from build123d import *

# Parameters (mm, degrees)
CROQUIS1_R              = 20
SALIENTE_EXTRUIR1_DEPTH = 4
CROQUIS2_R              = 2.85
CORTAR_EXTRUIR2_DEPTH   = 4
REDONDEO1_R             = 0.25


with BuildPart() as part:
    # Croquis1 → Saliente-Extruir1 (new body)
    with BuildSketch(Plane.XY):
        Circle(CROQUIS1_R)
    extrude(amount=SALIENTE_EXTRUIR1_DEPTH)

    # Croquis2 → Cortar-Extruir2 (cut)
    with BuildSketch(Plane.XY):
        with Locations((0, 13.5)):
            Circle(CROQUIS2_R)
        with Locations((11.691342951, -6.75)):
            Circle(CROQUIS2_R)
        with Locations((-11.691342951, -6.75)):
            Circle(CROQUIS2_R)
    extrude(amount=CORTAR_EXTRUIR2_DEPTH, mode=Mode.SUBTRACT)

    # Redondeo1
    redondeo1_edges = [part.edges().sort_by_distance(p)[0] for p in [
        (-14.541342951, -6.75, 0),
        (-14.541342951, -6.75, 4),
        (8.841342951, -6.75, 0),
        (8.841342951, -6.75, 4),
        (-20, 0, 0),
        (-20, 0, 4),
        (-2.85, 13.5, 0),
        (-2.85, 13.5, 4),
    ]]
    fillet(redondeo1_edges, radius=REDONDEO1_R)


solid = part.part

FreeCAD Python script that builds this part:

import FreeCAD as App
import Part
import Sketcher

V = App.Vector
Q = App.Units.Quantity


def edges_at(feature, points):
    """Names of the edges that pass closest to the given points."""
    edges = feature.Shape.Edges
    near = lambda p: min(range(len(edges)), key=lambda i: edges[i].distToShape(Part.Vertex(*p))[0])
    return sorted({f"Edge{near(p) + 1}" for p in points})

doc = App.newDocument("Part")
body = doc.addObject("PartDesign::Body", "Body")

# Sketch on XY plane
sketch1 = body.newObject("Sketcher::SketchObject", "Sketch")
sketch1.AttachmentSupport = (doc.getObject("XY_Plane"), [""])
sketch1.MapMode = "FlatFace"
sketch1.addGeometry(Part.Circle(V(0, 0, 0), V(0, 0, 1), 20), False)
sketch1.addConstraint([
    Sketcher.Constraint("Coincident", 0, 3, -1, 1),
    Sketcher.Constraint("Diameter", 0, Q("40 mm")),
])
pad1 = body.newObject("PartDesign::Pad", "Pad")
pad1.Profile = sketch1
pad1.Length = 4

# Sketch on XY plane
sketch2 = body.newObject("Sketcher::SketchObject", "Sketch001")
sketch2.AttachmentSupport = (doc.getObject("XY_Plane"), [""])
sketch2.MapMode = "FlatFace"
sketch2.addGeometry([
    Part.Circle(V(0, 13.5, 0), V(0, 0, 1), 2.9),
    Part.Circle(V(11.7, -6.8, 0), V(0, 0, 1), 2.9),
    Part.Circle(V(-11.7, -6.8, 0), V(0, 0, 1), 2.9),
], False)
sketch2.addConstraint([
    Sketcher.Constraint("Equal", 0, 1),
    Sketcher.Constraint("Equal", 1, 2),
    Sketcher.Constraint("Symmetric", 1, 3, 2, 3, -2),
    Sketcher.Constraint("PointOnObject", 0, 3, -2),
    Sketcher.Constraint("Diameter", 0, Q("5.7 mm")),
    Sketcher.Constraint("DistanceY", -1, 1, 0, 3, Q("13.5 mm")),
    Sketcher.Constraint("DistanceY", 1, 3, -1, 1, Q("6.75 mm")),
    Sketcher.Constraint("DistanceX", -1, 1, 1, 3, Q("11.691343 mm")),
])
pocket1 = body.newObject("PartDesign::Pocket", "Pocket")
pocket1.Profile = sketch2
pocket1.Length = 4
pocket1.Reversed = True
doc.recompute()

fillet = body.newObject("PartDesign::Fillet", "Fillet")
fillet.Base = (pocket1, edges_at(pocket1, [
    (-14.541, -6.75, 0),
    (-14.541, -6.75, 4),
    (8.841, -6.75, 0),
    (8.841, -6.75, 4),
    (-20, 0, 0),
    (-20, 0, 4),
    (-2.85, 13.5, 0),
    (-2.85, 13.5, 4),
]))
fillet.Radius = 0.25

doc.recompute()
